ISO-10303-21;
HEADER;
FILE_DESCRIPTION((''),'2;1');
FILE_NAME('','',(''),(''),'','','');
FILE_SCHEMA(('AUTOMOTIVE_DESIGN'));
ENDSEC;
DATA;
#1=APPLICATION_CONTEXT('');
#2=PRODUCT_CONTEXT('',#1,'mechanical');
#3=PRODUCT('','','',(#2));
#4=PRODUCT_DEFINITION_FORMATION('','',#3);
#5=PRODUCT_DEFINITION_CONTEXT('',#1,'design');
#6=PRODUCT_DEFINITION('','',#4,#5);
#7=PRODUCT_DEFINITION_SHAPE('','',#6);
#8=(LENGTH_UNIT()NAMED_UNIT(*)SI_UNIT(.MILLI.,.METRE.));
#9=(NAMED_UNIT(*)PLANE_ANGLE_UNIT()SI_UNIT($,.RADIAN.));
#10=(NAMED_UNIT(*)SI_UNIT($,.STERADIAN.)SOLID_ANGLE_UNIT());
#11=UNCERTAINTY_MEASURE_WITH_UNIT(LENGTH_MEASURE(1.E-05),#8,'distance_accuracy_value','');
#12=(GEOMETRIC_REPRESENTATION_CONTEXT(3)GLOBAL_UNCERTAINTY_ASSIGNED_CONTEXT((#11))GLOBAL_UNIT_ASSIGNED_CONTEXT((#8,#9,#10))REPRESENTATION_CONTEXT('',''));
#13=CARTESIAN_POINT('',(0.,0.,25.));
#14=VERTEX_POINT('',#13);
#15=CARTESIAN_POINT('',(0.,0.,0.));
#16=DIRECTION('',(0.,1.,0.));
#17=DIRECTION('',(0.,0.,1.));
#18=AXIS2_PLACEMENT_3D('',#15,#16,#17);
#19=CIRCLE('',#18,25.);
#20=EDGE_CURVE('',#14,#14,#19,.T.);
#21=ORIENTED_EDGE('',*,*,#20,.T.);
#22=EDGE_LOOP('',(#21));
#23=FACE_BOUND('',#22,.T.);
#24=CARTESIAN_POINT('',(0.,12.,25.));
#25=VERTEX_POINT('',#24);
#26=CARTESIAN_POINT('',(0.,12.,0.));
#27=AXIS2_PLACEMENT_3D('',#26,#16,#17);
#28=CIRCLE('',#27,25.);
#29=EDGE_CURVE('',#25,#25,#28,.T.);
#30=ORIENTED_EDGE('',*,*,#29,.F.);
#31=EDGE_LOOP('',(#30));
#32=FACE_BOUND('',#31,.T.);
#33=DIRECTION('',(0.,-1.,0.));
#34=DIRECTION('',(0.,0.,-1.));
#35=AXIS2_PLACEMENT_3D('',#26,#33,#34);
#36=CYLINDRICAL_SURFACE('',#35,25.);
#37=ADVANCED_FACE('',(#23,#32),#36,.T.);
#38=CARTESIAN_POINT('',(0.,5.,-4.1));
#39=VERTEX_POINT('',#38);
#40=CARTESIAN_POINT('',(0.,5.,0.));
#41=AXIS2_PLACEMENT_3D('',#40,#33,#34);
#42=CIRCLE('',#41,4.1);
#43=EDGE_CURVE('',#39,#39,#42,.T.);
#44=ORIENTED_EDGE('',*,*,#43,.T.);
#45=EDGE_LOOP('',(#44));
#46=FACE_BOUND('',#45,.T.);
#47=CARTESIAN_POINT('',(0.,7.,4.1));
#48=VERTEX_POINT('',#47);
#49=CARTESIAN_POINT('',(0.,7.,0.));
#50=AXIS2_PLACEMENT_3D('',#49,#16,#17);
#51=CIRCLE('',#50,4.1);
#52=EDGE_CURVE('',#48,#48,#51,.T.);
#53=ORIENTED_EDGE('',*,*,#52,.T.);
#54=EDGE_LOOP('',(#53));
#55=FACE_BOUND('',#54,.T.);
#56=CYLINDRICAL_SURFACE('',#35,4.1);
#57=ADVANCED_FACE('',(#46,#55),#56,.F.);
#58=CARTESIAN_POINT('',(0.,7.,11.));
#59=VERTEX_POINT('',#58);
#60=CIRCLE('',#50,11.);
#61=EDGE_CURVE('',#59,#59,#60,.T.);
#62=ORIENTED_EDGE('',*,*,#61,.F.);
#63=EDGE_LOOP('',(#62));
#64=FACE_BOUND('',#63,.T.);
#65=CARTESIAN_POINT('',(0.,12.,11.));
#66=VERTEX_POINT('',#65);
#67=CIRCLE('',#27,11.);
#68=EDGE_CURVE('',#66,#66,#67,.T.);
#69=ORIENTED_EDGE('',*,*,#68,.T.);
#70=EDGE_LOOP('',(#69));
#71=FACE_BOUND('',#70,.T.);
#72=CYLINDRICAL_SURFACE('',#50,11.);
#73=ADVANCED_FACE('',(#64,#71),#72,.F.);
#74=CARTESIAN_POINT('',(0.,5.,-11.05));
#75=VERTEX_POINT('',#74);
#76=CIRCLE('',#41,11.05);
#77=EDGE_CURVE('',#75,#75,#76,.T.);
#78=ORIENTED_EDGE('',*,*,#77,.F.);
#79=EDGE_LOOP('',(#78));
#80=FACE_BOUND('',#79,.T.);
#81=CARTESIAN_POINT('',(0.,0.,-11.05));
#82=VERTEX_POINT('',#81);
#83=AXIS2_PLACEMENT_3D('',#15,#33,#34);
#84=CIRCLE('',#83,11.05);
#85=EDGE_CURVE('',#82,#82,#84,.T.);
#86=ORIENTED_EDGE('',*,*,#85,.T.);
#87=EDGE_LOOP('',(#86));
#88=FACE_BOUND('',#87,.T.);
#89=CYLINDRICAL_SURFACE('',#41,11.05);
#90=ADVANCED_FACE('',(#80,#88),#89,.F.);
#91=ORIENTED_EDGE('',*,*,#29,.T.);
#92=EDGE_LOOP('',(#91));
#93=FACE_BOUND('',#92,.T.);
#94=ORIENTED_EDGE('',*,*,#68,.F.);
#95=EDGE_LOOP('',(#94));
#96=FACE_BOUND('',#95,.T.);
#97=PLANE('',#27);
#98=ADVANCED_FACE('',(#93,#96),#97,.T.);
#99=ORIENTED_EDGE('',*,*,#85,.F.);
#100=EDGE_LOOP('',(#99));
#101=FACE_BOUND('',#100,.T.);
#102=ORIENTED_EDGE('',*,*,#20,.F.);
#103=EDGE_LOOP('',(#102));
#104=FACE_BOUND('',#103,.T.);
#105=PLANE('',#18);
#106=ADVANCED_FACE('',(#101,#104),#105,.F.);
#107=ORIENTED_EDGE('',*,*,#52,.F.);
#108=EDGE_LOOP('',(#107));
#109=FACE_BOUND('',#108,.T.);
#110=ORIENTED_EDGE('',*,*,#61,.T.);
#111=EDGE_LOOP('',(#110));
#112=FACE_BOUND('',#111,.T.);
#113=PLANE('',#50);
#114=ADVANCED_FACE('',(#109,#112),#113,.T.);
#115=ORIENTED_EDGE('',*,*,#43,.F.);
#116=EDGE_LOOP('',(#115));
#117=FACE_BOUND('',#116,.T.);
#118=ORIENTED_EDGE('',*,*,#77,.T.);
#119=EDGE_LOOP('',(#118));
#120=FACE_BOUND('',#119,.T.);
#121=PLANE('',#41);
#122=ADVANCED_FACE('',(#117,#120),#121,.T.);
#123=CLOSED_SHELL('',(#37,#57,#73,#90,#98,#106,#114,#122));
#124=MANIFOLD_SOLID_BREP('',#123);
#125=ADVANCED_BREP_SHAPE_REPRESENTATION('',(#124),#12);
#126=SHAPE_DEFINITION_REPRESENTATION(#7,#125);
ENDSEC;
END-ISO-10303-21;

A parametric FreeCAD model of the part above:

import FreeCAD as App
import Part
import Sketcher
Q = App.Units.Quantity

doc = App.newDocument("Part")
body = doc.addObject("PartDesign::Body", "Body")

# Sketch on XZ plane
sketch1 = body.newObject("Sketcher::SketchObject", "Sketch")
sketch1.AttachmentSupport = (doc.getObject("XZ_Plane"), [""])
sketch1.MapMode = "FlatFace"
sketch1.addGeometry([
    Part.Circle(App.Vector(0, 0, 0), App.Vector(0, 0, 1), 25),
    Part.Circle(App.Vector(0, 0, 0), App.Vector(0, 0, 1), 4.1),
], False)
sketch1.addConstraint([
    Sketcher.Constraint("Coincident", 0, 3, -1, 1),
    Sketcher.Constraint("Coincident", 1, 3, -1, 1),
    Sketcher.Constraint("Diameter", 0, Q("50 mm")),
    Sketcher.Constraint("Diameter", 1, Q("8.2 mm")),
])
pad1 = body.newObject("PartDesign::Pad", "Pad")
pad1.Profile = sketch1
pad1.Length = 12
pad1.Reversed = True

# Sketch on XZ plane
sketch2 = body.newObject("Sketcher::SketchObject", "Sketch001")
sketch2.AttachmentSupport = (doc.getObject("XZ_Plane"), [""])
sketch2.MapMode = "FlatFace"
sketch2.AttachmentOffset = App.Placement(App.Vector(0, 0, -12), App.Rotation())
sketch2.addGeometry(Part.Circle(App.Vector(0, 0, 0), App.Vector(0, 0, 1), 11), False)
sketch2.addConstraint([
    Sketcher.Constraint("Coincident", 0, 3, -1, 1),
    Sketcher.Constraint("Diameter", 0, Q("22 mm")),
])
pocket1 = body.newObject("PartDesign::Pocket", "Pocket")
pocket1.Profile = sketch2
pocket1.Length = 5
pocket1.Reversed = True

# Sketch on XZ plane
sketch3 = body.newObject("Sketcher::SketchObject", "Sketch002")
sketch3.AttachmentSupport = (doc.getObject("XZ_Plane"), [""])
sketch3.MapMode = "FlatFace"
sketch3.addGeometry(Part.Circle(App.Vector(0, 0, 0), App.Vector(0, 0, 1), 11.05), False)
sketch3.addConstraint([
    Sketcher.Constraint("Coincident", 0, 3, -1, 1),
    Sketcher.Constraint("Diameter", 0, Q("22.1 mm")),
])
pocket2 = body.newObject("PartDesign::Pocket", "Pocket001")
pocket2.Profile = sketch3
pocket2.Length = 5

doc.recompute()
